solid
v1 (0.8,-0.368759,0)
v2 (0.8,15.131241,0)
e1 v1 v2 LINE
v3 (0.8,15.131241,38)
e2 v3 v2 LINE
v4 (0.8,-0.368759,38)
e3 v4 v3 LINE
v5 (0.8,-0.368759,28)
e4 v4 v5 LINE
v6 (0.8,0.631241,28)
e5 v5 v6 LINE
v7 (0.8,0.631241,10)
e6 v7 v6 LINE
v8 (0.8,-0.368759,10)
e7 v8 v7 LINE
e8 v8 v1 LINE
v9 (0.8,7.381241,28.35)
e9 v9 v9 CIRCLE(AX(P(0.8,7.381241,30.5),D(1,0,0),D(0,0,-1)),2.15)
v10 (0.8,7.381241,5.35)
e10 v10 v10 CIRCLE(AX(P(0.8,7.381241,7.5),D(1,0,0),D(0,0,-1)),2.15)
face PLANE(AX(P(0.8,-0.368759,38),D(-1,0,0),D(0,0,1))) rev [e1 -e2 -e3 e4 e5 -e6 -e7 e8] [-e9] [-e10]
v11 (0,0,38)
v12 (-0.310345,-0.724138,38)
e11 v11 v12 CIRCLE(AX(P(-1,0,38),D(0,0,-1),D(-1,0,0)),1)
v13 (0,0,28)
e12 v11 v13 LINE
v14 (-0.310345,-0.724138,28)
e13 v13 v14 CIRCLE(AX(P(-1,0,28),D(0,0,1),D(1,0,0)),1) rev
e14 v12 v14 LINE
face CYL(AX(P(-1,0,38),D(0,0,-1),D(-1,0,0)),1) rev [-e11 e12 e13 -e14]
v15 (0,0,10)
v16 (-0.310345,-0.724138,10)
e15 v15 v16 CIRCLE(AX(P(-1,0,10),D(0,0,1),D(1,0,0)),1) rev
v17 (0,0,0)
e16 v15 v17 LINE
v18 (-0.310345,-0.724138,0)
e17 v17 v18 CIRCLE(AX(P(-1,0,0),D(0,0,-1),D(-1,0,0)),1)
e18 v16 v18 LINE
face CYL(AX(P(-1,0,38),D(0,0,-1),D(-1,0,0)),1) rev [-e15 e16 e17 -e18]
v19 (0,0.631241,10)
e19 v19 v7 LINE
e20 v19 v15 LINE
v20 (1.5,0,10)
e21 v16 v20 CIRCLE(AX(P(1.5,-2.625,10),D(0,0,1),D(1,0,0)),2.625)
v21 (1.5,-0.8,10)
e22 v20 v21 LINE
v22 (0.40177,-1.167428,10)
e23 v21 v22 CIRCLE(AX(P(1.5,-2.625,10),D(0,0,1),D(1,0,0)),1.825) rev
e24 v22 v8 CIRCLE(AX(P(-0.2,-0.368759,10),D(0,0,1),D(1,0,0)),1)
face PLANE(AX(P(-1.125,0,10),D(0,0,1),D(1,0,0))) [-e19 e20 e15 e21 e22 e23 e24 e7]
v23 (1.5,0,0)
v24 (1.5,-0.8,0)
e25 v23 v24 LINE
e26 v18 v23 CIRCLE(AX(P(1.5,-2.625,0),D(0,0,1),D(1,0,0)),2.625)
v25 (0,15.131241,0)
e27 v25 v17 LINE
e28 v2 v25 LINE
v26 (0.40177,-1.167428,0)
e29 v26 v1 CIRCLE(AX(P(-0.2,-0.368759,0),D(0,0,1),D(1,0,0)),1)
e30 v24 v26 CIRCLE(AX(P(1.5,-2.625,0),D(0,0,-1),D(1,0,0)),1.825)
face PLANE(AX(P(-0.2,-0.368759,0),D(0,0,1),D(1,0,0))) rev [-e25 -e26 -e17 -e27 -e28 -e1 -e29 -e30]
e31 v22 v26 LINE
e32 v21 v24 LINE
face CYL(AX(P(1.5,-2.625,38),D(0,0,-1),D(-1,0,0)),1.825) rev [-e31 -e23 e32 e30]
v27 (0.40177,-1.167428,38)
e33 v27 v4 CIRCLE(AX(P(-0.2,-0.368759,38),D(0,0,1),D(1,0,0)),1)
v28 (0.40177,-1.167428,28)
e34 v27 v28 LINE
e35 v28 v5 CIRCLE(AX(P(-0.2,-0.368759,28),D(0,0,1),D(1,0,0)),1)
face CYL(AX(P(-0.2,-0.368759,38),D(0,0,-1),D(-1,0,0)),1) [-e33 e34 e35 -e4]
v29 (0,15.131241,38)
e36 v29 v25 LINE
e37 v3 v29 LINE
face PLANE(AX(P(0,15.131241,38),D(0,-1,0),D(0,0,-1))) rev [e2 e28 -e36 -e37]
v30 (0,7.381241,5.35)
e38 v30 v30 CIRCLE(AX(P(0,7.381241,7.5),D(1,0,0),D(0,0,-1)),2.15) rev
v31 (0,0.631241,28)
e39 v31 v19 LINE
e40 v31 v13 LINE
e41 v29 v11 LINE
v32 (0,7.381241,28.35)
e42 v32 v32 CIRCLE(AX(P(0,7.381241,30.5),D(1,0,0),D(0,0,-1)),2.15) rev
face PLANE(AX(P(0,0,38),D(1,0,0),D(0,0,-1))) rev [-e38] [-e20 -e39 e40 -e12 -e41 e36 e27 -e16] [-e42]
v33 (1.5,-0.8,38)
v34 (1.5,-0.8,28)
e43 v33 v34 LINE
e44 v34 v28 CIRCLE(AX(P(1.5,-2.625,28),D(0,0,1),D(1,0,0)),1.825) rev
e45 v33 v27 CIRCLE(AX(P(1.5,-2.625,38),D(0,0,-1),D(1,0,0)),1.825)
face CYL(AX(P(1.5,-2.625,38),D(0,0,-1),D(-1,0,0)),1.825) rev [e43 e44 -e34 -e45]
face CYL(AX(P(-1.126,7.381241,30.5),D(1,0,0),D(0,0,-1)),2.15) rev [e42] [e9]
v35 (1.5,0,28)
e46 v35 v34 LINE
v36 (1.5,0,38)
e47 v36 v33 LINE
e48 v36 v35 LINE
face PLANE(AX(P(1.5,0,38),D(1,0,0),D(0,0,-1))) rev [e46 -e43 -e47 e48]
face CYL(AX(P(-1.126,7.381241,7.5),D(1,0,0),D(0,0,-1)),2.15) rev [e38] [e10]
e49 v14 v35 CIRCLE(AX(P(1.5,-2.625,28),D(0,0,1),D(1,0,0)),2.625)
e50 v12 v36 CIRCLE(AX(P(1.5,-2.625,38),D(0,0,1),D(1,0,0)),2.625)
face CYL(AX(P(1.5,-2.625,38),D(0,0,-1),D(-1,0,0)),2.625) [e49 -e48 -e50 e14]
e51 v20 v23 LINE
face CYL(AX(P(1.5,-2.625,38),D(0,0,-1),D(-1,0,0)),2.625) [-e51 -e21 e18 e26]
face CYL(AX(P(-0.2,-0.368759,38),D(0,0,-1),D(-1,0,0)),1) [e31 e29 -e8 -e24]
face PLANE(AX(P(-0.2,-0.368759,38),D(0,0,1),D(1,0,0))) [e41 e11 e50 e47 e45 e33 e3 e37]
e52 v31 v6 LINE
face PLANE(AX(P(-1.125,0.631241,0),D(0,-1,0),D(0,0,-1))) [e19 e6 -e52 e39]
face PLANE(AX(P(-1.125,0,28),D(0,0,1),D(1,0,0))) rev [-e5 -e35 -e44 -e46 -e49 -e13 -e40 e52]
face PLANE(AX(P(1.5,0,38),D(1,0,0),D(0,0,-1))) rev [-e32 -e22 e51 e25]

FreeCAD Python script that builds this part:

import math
import FreeCAD as App
import Part
import Sketcher

V = App.Vector


def add_polygon(sketch, points):
    """Adds a closed chain of lines whose ends are joined by coincident constraints."""
    first, n = sketch.GeometryCount, len(points)
    for a, b in zip(points, points[1:] + points[:1]):
        sketch.addGeometry(Part.LineSegment(App.Vector(*a, 0), App.Vector(*b, 0)), False)
    for i in range(n):
        sketch.addConstraint(Sketcher.Constraint("Coincident", first + i, 2, first + (i + 1) % n, 1))

doc = App.newDocument("Part")
body = doc.addObject("PartDesign::Body", "Body")

sketch1 = body.newObject("Sketcher::SketchObject", "Sketch")
sketch1.AttachmentSupport = (doc.getObject("XY_Plane"), [""])
sketch1.MapMode = "FlatFace"
sketch1.addGeometry(Part.LineSegment(V(0.8, -0.4, 0), V(0.8, 15.1, 0)), False)
sketch1.addGeometry(Part.LineSegment(V(0.8, 15.1, 0), V(0, 15.1, 0)), False)
sketch1.addGeometry(Part.LineSegment(V(0, 15.1, 0), V(0, 0, 0)), False)
sketch1.addGeometry(Part.ArcOfCircle(Part.Circle(V(-1, 0, 0), V(0, 0, 1), 1), math.radians(-46), math.radians(0)), False)
sketch1.addGeometry(Part.ArcOfCircle(Part.Circle(V(1.5, -2.6, 0), V(0, 0, 1), 2.6), math.radians(134), math.radians(450)), False)
sketch1.addGeometry(Part.LineSegment(V(1.5, 0, 0), V(1.5, -0.8, 0)), False)
sketch1.addGeometry(Part.ArcOfCircle(Part.Circle(V(1.5, -2.6, 0), V(0, 0, 1), 1.8), math.radians(127), math.radians(450)), False)
sketch1.addGeometry(Part.ArcOfCircle(Part.Circle(V(-0.2, -0.4, 0), V(0, 0, 1), 1), math.radians(-53), math.radians(0)), False)
sketch1.addConstraint(Sketcher.Constraint("Coincident", 0, 2, 1, 1))
sketch1.addConstraint(Sketcher.Constraint("Coincident", 1, 2, 2, 1))
sketch1.addConstraint(Sketcher.Constraint("Tangent", 2, 2, 3, 2))
sketch1.addConstraint(Sketcher.Constraint("Tangent", 3, 1, 4, 1))
sketch1.addConstraint(Sketcher.Constraint("Coincident", 4, 2, 5, 1))
sketch1.addConstraint(Sketcher.Constraint("Coincident", 5, 2, 6, 2))
sketch1.addConstraint(Sketcher.Constraint("Tangent", 6, 1, 7, 1))
sketch1.addConstraint(Sketcher.Constraint("Tangent", 7, 2, 0, 1))
sketch1.addConstraint(Sketcher.Constraint("Vertical", 0))
sketch1.addConstraint(Sketcher.Constraint("Horizontal", 1))
sketch1.addConstraint(Sketcher.Constraint("Vertical", 2))
sketch1.addConstraint(Sketcher.Constraint("Vertical", 5))
sketch1.addConstraint(Sketcher.Constraint("Coincident", 2, 2, -1, 1))
sketch1.addConstraint(Sketcher.Constraint("Coincident", 6, 3, 4, 3))
sketch1.addConstraint(Sketcher.Constraint("Equal", 3, 7))
sketch1.addConstraint(Sketcher.Constraint("PointOnObject", 4, 2, -1))
sketch1.addConstraint(Sketcher.Constraint("Vertical", 6, 3, 4, 2))
sketch1.addConstraint(Sketcher.Constraint("Equal", 1, 5))
sketch1.addConstraint(Sketcher.Constraint("Radius", 3, 1.0))
sketch1.addConstraint(Sketcher.Constraint("DistanceX", 1, 2, 1, 1, 0.8))
sketch1.addConstraint(Sketcher.Constraint("DistanceY", 0, 1, 0, 2, 15.5))
sketch1.addConstraint(Sketcher.Constraint("Radius", 4, 2.625))
pad1 = body.newObject("PartDesign::Pad", "Pad")
pad1.Profile = sketch1
pad1.Length = 38

sketch2 = body.newObject("Sketcher::SketchObject", "Sketch001")
sketch2.AttachmentSupport = (doc.getObject("YZ_Plane"), [""])
sketch2.MapMode = "FlatFace"
sketch2.AttachmentOffset = App.Placement(V(0, 0, 0.8), App.Rotation())
sketch2.addGeometry(Part.Circle(V(7.4, 30.5, 0), V(0, 0, 1), 2.1), False)
sketch2.addConstraint(Sketcher.Constraint("Diameter", 0, 4.3))
sketch2.addConstraint(Sketcher.Constraint("DistanceY", -1, 1, 0, 3, 30.5))
sketch2.addConstraint(Sketcher.Constraint("DistanceX", -1, 1, 0, 3, 7.381241))
pocket1 = body.newObject("PartDesign::Pocket", "Pocket")
pocket1.Profile = sketch2
pocket1.Type = "UpToFirst"

sketch3 = body.newObject("Sketcher::SketchObject", "Sketch002")
sketch3.AttachmentSupport = (doc.getObject("YZ_Plane"), [""])
sketch3.MapMode = "FlatFace"
sketch3.AttachmentOffset = App.Placement(V(0, 0, 0.8), App.Rotation())
sketch3.addGeometry(Part.Circle(V(7.4, 7.5, 0), V(0, 0, 1), 2.1), False)
sketch3.addConstraint(Sketcher.Constraint("Diameter", 0, 4.3))
sketch3.addConstraint(Sketcher.Constraint("DistanceY", -1, 1, 0, 3, 7.5))
sketch3.addConstraint(Sketcher.Constraint("DistanceX", -1, 1, 0, 3, 7.381241))
pocket2 = body.newObject("PartDesign::Pocket", "Pocket001")
pocket2.Profile = sketch3
pocket2.Type = "UpToFirst"

sketch4 = body.newObject("Sketcher::SketchObject", "Sketch003")
sketch4.AttachmentSupport = (doc.getObject("YZ_Plane"), [""])
sketch4.MapMode = "FlatFace"
sketch4.AttachmentOffset = App.Placement(V(0, 0, 0.8), App.Rotation())
add_polygon(sketch4, [(1, 28), (-5, 28), (-5, 10), (1, 10)])
sketch4.addConstraint(Sketcher.Constraint("Horizontal", 0))
sketch4.addConstraint(Sketcher.Constraint("Vertical", 1))
sketch4.addConstraint(Sketcher.Constraint("Horizontal", 2))
sketch4.addConstraint(Sketcher.Constraint("Vertical", 3))
sketch4.addConstraint(Sketcher.Constraint("DistanceY", 1, 2, 1, 1, 18.0))
sketch4.addConstraint(Sketcher.Constraint("DistanceY", -1, 1, 0, 2, 28.0))
sketch4.addConstraint(Sketcher.Constraint("DistanceX", 0, 2, -1, 1, 5.25))
sketch4.addConstraint(Sketcher.Constraint("DistanceX", 0, 2, 0, 1, 5.881241))
pocket3 = body.newObject("PartDesign::Pocket", "Pocket002")
pocket3.Profile = sketch4
pocket3.Type = "ThroughAll"
pocket3.Midplane = True

doc.recompute()
